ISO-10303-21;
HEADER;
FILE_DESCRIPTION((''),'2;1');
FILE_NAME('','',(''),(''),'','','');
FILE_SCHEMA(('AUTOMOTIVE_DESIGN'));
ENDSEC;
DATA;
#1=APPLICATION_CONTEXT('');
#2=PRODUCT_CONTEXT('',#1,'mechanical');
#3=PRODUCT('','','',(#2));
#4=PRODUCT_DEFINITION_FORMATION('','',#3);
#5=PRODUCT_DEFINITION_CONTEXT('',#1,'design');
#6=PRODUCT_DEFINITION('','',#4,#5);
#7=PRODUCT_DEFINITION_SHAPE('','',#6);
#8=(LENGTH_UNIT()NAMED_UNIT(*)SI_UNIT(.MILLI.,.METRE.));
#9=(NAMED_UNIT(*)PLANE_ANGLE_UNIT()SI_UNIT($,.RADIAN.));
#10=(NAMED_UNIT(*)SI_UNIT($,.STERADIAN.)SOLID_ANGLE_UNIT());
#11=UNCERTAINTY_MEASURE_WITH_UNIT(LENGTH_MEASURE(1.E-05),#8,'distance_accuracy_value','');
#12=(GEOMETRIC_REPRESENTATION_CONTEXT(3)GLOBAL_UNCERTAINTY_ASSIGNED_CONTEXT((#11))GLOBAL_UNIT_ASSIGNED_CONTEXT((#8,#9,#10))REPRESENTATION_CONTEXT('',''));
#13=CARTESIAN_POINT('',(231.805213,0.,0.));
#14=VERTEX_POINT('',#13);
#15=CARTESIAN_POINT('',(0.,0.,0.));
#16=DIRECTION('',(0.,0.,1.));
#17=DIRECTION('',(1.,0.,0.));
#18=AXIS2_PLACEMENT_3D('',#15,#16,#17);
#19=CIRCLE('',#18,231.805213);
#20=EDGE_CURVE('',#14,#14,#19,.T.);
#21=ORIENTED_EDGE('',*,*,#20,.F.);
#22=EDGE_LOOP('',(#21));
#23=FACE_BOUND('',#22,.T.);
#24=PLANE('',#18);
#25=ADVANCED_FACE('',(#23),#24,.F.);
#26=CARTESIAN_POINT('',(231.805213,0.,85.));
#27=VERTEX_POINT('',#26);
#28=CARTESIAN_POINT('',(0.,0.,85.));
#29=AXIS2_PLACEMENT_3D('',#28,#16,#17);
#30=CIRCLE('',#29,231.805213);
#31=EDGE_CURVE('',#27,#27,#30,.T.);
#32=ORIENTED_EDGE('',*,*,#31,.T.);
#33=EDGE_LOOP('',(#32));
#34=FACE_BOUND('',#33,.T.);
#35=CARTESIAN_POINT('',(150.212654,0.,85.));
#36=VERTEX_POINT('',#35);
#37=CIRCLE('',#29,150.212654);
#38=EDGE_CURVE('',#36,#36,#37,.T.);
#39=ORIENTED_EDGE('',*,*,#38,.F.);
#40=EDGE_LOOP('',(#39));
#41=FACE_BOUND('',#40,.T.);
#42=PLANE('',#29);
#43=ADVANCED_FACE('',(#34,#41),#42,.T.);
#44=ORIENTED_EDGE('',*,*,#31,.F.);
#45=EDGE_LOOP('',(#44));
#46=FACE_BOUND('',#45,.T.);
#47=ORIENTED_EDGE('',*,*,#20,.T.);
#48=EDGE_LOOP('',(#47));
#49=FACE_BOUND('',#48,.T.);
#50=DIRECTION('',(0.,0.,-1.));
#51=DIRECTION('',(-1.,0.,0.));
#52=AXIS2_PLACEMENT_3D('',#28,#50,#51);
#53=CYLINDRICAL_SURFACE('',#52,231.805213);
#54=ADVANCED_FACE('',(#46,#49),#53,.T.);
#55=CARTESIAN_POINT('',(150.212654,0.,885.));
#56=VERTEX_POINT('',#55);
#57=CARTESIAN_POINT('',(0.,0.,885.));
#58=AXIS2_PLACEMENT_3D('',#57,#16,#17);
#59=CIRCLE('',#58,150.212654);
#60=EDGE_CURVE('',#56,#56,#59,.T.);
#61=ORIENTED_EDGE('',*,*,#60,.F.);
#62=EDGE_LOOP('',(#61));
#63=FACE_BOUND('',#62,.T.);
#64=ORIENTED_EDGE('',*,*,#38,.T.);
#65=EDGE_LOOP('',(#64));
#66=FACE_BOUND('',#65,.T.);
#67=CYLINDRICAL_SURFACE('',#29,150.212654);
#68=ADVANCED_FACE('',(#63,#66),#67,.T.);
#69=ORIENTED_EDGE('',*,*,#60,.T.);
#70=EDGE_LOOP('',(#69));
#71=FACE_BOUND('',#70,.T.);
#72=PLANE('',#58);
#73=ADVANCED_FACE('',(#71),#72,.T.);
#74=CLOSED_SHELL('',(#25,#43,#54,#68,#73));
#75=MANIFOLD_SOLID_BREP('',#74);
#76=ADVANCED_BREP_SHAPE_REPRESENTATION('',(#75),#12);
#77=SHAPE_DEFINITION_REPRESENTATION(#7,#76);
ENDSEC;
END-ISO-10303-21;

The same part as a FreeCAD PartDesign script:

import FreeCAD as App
import Part
import Sketcher
Q = App.Units.Quantity


def add_polygon(sketch, points):
    """Adds a closed chain of lines whose ends are joined by coincident constraints."""
    first, n = sketch.GeometryCount, len(points)
    for a, b in zip(points, points[1:] + points[:1]):
        sketch.addGeometry(Part.LineSegment(App.Vector(*a, 0), App.Vector(*b, 0)), False)
    for i in range(n):
        sketch.addConstraint(Sketcher.Constraint("Coincident", first + i, 2, first + (i + 1) % n, 1))

doc = App.newDocument("Part")
body = doc.addObject("PartDesign::Body", "Body")

# Sketch on XY plane
sketch1 = body.newObject("Sketcher::SketchObject", "Sketch")
sketch1.AttachmentSupport = (doc.getObject("XY_Plane"), [""])
sketch1.MapMode = "FlatFace"
sketch1.addGeometry(Part.Circle(App.Vector(0, 0, 0), App.Vector(0, 0, 1), 232), False)
sketch1.addConstraint(Sketcher.Constraint("Coincident", 0, 3, -1, 1))
sketch1.addConstraint(Sketcher.Constraint("Diameter", 0, Q("463.610427 mm")))
pad1 = body.newObject("PartDesign::Pad", "Pad")
pad1.Profile = sketch1
pad1.Length = 85

# Sketch on XY plane
sketch2 = body.newObject("Sketcher::SketchObject", "Sketch001")
sketch2.AttachmentSupport = (doc.getObject("XY_Plane"), [""])
sketch2.MapMode = "FlatFace"
sketch2.AttachmentOffset = App.Placement(App.Vector(0, 0, 85), App.Rotation())
add_polygon(sketch2, [(-108, 105), (-108, -105), (108, -105), (108, 105)])  # lines 0-3
sketch2.addConstraint(Sketcher.Constraint("Vertical", 0))
sketch2.addConstraint(Sketcher.Constraint("Horizontal", 1))
sketch2.addConstraint(Sketcher.Constraint("Vertical", 2))
sketch2.addConstraint(Sketcher.Constraint("Horizontal", 3))
sketch2.addConstraint(Sketcher.Constraint("Symmetric", 0, 2, 2, 2, -1, 1))
sketch2.addConstraint(Sketcher.Constraint("DistanceX", 1, 1, 1, 2, Q("215.150126 mm")))
sketch2.addConstraint(Sketcher.Constraint("DistanceY", 0, 2, 0, 1, Q("209.680208 mm")))
pad2 = body.newObject("PartDesign::Pad", "Pad001")
pad2.Profile = sketch2
pad2.Length = 800

# Sketch on YZ plane
sketch3 = body.newObject("Sketcher::SketchObject", "Sketch002")
sketch3.AttachmentSupport = (doc.getObject("YZ_Plane"), [""])
sketch3.MapMode = "FlatFace"
sketch3.AttachmentOffset = App.Placement(App.Vector(0, 0, 107.575063), App.Rotation())
sketch3.addGeometry(Part.Circle(App.Vector(0, 795, 0), App.Vector(0, 0, 1), 35), False)
sketch3.addConstraint(Sketcher.Constraint("PointOnObject", 0, 3, -2))
sketch3.addConstraint(Sketcher.Constraint("Diameter", 0, Q("70 mm")))
sketch3.addConstraint(Sketcher.Constraint("DistanceY", -1, 1, 0, 3, Q("795.184826 mm")))
pocket1 = body.newObject("PartDesign::Pocket", "Pocket")
pocket1.Profile = sketch3
pocket1.Length = 248

# Sketch on XY plane
sketch4 = body.newObject("Sketcher::SketchObject", "Sketch003")
sketch4.AttachmentSupport = (doc.getObject("XY_Plane"), [""])
sketch4.MapMode = "FlatFace"
sketch4.AttachmentOffset = App.Placement(App.Vector(0, 0, 885), App.Rotation())
sketch4.addGeometry(Part.Circle(App.Vector(0, 0, 0), App.Vector(0, 0, 1), 150), False)
sketch4.addConstraint(Sketcher.Constraint("Coincident", 0, 3, -1, 1))
sketch4.addConstraint(Sketcher.Constraint("Diameter", 0, Q("300.425309 mm")))
pad3 = body.newObject("PartDesign::Pad", "Pad002")
pad3.Profile = sketch4
pad3.Length = 885
pad3.Reversed = True

doc.recompute()
